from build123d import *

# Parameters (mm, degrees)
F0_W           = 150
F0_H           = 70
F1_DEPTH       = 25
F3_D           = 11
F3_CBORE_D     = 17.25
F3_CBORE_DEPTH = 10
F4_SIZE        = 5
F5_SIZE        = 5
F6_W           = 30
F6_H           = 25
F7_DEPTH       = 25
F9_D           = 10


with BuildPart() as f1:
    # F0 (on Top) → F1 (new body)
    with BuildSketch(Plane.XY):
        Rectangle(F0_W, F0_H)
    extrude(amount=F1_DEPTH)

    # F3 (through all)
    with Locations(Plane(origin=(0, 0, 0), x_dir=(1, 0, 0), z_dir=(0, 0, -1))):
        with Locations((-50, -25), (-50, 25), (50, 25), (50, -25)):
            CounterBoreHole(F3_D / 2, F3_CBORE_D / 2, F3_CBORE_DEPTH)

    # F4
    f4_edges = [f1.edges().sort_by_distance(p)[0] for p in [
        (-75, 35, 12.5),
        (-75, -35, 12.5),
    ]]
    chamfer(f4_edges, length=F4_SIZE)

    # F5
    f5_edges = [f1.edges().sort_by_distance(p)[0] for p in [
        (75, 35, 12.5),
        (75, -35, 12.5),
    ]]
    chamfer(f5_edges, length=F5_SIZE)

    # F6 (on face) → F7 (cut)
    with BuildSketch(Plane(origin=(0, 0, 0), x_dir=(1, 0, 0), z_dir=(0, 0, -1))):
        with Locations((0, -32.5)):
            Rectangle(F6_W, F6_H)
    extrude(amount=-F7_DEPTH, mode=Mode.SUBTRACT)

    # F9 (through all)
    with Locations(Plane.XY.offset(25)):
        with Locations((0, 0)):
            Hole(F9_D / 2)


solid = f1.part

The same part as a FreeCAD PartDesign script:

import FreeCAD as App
import Part
import Sketcher

V = App.Vector
Q = App.Units.Quantity


def edges_at(feature, points):
    """Names of the edges that pass closest to the given points."""
    edges = feature.Shape.Edges
    near = lambda p: min(range(len(edges)), key=lambda i: edges[i].distToShape(Part.Vertex(*p))[0])
    return sorted({f"Edge{near(p) + 1}" for p in points})

doc = App.newDocument("Part")
body = doc.addObject("PartDesign::Body", "Body")

# Sketch on XY plane
sketch1 = body.newObject("Sketcher::SketchObject", "Sketch")
sketch1.AttachmentSupport = (doc.getObject("XY_Plane"), [""])
sketch1.MapMode = "FlatFace"
sketch1.addGeometry([
    Part.LineSegment(V(-75, 35, 0), V(-75, -35, 0)),
    Part.LineSegment(V(-75, -35, 0), V(75, -35, 0)),
    Part.LineSegment(V(75, -35, 0), V(75, 35, 0)),
    Part.LineSegment(V(75, 35, 0), V(-75, 35, 0)),
], False)
sketch1.addConstraint([
    Sketcher.Constraint("Coincident", 0, 2, 1, 1),
    Sketcher.Constraint("Coincident", 1, 2, 2, 1),
    Sketcher.Constraint("Coincident", 2, 2, 3, 1),
    Sketcher.Constraint("Coincident", 3, 2, 0, 1),
    Sketcher.Constraint("Vertical", 0),
    Sketcher.Constraint("Horizontal", 1),
    Sketcher.Constraint("Vertical", 2),
    Sketcher.Constraint("Horizontal", 3),
    Sketcher.Constraint("Symmetric", 0, 2, 2, 2, -1, 1),
    Sketcher.Constraint("DistanceX", 1, 1, 1, 2, Q("150 mm")),
    Sketcher.Constraint("DistanceY", 0, 2, 0, 1, Q("70 mm")),
])
pad1 = body.newObject("PartDesign::Pad", "Pad")
pad1.Profile = sketch1
pad1.Length = 25

# Sketch on XY plane
sketch2 = body.newObject("Sketcher::SketchObject", "Sketch001")
sketch2.AttachmentSupport = (doc.getObject("XY_Plane"), [""])
sketch2.MapMode = "FlatFace"
sketch2.addGeometry([
    Part.Circle(V(-50, 25, 0), V(0, 0, 1), 6),
    Part.Circle(V(-50, -25, 0), V(0, 0, 1), 6),
    Part.Circle(V(50, -25, 0), V(0, 0, 1), 6),
    Part.Circle(V(50, 25, 0), V(0, 0, 1), 6),
], False)
sketch2.addConstraint([
    Sketcher.Constraint("Equal", 0, 1),
    Sketcher.Constraint("Equal", 1, 2),
    Sketcher.Constraint("Equal", 2, 3),
    Sketcher.Constraint("Symmetric", 0, 3, 2, 3, -1, 1),
    Sketcher.Constraint("Symmetric", 1, 3, 3, 3, -1, 1),
    Sketcher.Constraint("Symmetric", 1, 3, 2, 3, -2),
    Sketcher.Constraint("Diameter", 0, Q("11 mm")),
    Sketcher.Constraint("DistanceX", 0, 3, -1, 1, Q("50 mm")),
    Sketcher.Constraint("DistanceY", -1, 1, 0, 3, Q("25 mm")),
])
doc.recompute()
hole = body.newObject("PartDesign::Hole", "Hole")
hole.Profile = sketch2
hole.ThreadType = "None"
hole.Diameter = 11
hole.DepthType = "ThroughAll"
hole.HoleCutType = "Counterbore"
hole.HoleCutDiameter = 17.25
hole.HoleCutDepth = 10
hole.Reversed = True
doc.recompute()

chamfer = body.newObject("PartDesign::Chamfer", "Chamfer")
chamfer.Base = (hole, edges_at(hole, [(-75, 35, 12.5), (-75, -35, 12.5)]))
chamfer.Size = 5
doc.recompute()

chamfer2 = body.newObject("PartDesign::Chamfer", "Chamfer001")
chamfer2.Base = (chamfer, edges_at(chamfer, [(75, 35, 12.5), (75, -35, 12.5)]))
chamfer2.Size = 5

# Sketch on XY plane
sketch3 = body.newObject("Sketcher::SketchObject", "Sketch002")
sketch3.AttachmentSupport = (doc.getObject("XY_Plane"), [""])
sketch3.MapMode = "FlatFace"
sketch3.addGeometry([
    Part.LineSegment(V(-15, 20, 0), V(-15, 45, 0)),
    Part.LineSegment(V(-15, 45, 0), V(15, 45, 0)),
    Part.LineSegment(V(15, 45, 0), V(15, 20, 0)),
    Part.LineSegment(V(15, 20, 0), V(-15, 20, 0)),
], False)
sketch3.addConstraint([
    Sketcher.Constraint("Coincident", 0, 2, 1, 1),
    Sketcher.Constraint("Coincident", 1, 2, 2, 1),
    Sketcher.Constraint("Coincident", 2, 2, 3, 1),
    Sketcher.Constraint("Coincident", 3, 2, 0, 1),
    Sketcher.Constraint("Vertical", 0),
    Sketcher.Constraint("Horizontal", 1),
    Sketcher.Constraint("Vertical", 2),
    Sketcher.Constraint("Horizontal", 3),
    Sketcher.Constraint("DistanceX", 1, 1, 1, 2, Q("30 mm")),
    Sketcher.Constraint("DistanceY", 0, 1, 0, 2, Q("25 mm")),
    Sketcher.Constraint("DistanceX", 0, 2, -1, 1, Q("15 mm")),
    Sketcher.Constraint("DistanceY", -1, 1, 0, 2, Q("45 mm")),
])
pocket1 = body.newObject("PartDesign::Pocket", "Pocket")
pocket1.Profile = sketch3
pocket1.Length = 25
pocket1.Reversed = True

# Sketch on XY plane
sketch4 = body.newObject("Sketcher::SketchObject", "Sketch003")
sketch4.AttachmentSupport = (doc.getObject("XY_Plane"), [""])
sketch4.MapMode = "FlatFace"
sketch4.AttachmentOffset = App.Placement(V(0, 0, 25), App.Rotation())
sketch4.addGeometry(Part.Circle(V(0, 0, 0), V(0, 0, 1), 5), False)
sketch4.addConstraint([
    Sketcher.Constraint("Coincident", 0, 3, -1, 1),
    Sketcher.Constraint("Diameter", 0, Q("10 mm")),
])
doc.recompute()
hole2 = body.newObject("PartDesign::Hole", "Hole001")
hole2.Profile = sketch4
hole2.ThreadType = "None"
hole2.Diameter = 10
hole2.DepthType = "ThroughAll"

doc.recompute()
